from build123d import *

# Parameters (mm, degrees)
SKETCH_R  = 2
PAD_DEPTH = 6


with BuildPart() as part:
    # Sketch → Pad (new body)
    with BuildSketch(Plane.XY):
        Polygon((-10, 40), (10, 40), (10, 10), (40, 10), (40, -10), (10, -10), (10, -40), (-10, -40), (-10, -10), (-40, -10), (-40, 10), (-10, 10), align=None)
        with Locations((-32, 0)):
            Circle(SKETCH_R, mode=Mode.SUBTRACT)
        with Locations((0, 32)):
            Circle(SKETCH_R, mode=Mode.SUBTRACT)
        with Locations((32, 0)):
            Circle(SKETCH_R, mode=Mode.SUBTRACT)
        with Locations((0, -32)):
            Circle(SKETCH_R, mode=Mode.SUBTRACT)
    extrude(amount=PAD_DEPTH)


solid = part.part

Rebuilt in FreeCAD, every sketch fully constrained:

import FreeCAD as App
import Part
import Sketcher

V = App.Vector

doc = App.newDocument("Part")
params = doc.addObject("Spreadsheet::Sheet", "Params")
for row, (alias, value) in enumerate([
    ("sketch1_diameter", "4 mm"),
    ("sketch1_width", "20 mm"),
    ("sketch1_width2", "30 mm"),
    ("pad1_length", "6 mm"),
], start=1):
    params.set(f"A{row}", alias)
    params.set(f"B{row}", "=" + value)
    params.setAlias(f"B{row}", alias)

body = doc.addObject("PartDesign::Body", "Body")

# Sketch on XY plane
sketch1 = doc.addObject("Sketcher::SketchObject", "Sketch")
body.addObject(sketch1)
sketch1.AttachmentSupport = (doc.XY_Plane, [""])
sketch1.MapMode = "FlatFace"
sketch1.addGeometry(Part.LineSegment(V(10, 40, 0), V(-10, 40, 0)), False)
sketch1.addGeometry(Part.LineSegment(V(-10, 40, 0), V(-10, 10, 0)), False)
sketch1.addGeometry(Part.LineSegment(V(-10, 10, 0), V(-40, 10, 0)), False)
sketch1.addGeometry(Part.LineSegment(V(-40, 10, 0), V(-40, -10, 0)), False)
sketch1.addGeometry(Part.LineSegment(V(-40, -10, 0), V(-10, -10, 0)), False)
sketch1.addGeometry(Part.LineSegment(V(-10, -10, 0), V(-10, -40, 0)), False)
sketch1.addGeometry(Part.LineSegment(V(-10, -40, 0), V(10, -40, 0)), False)
sketch1.addGeometry(Part.LineSegment(V(10, -40, 0), V(10, -10, 0)), False)
sketch1.addGeometry(Part.LineSegment(V(10, -10, 0), V(40, -10, 0)), False)
sketch1.addGeometry(Part.LineSegment(V(40, -10, 0), V(40, 10, 0)), False)
sketch1.addGeometry(Part.LineSegment(V(40, 10, 0), V(10, 10, 0)), False)
sketch1.addGeometry(Part.LineSegment(V(10, 10, 0), V(10, 40, 0)), False)
sketch1.addGeometry(Part.Circle(V(0, -32, 0), V(0, 0, 1), 2), False)
sketch1.addGeometry(Part.Circle(V(32, 0, 0), V(0, 0, 1), 2), False)
sketch1.addGeometry(Part.Circle(V(-32, 0, 0), V(0, 0, 1), 2), False)
sketch1.addGeometry(Part.Circle(V(0, 32, 0), V(0, 0, 1), 2), False)
sketch1.addConstraint(Sketcher.Constraint("Coincident", 0, 2, 1, 1))
sketch1.addConstraint(Sketcher.Constraint("Coincident", 1, 2, 2, 1))
sketch1.addConstraint(Sketcher.Constraint("Coincident", 2, 2, 3, 1))
sketch1.addConstraint(Sketcher.Constraint("Coincident", 3, 2, 4, 1))
sketch1.addConstraint(Sketcher.Constraint("Coincident", 4, 2, 5, 1))
sketch1.addConstraint(Sketcher.Constraint("Coincident", 5, 2, 6, 1))
sketch1.addConstraint(Sketcher.Constraint("Coincident", 6, 2, 7, 1))
sketch1.addConstraint(Sketcher.Constraint("Coincident", 7, 2, 8, 1))
sketch1.addConstraint(Sketcher.Constraint("Coincident", 8, 2, 9, 1))
sketch1.addConstraint(Sketcher.Constraint("Coincident", 9, 2, 10, 1))
sketch1.addConstraint(Sketcher.Constraint("Coincident", 10, 2, 11, 1))
sketch1.addConstraint(Sketcher.Constraint("Coincident", 11, 2, 0, 1))
sketch1.addConstraint(Sketcher.Constraint("Horizontal", 0))
sketch1.addConstraint(Sketcher.Constraint("Vertical", 1))
sketch1.addConstraint(Sketcher.Constraint("Horizontal", 2))
sketch1.addConstraint(Sketcher.Constraint("Vertical", 3))
sketch1.addConstraint(Sketcher.Constraint("Horizontal", 4))
sketch1.addConstraint(Sketcher.Constraint("Vertical", 5))
sketch1.addConstraint(Sketcher.Constraint("Horizontal", 6))
sketch1.addConstraint(Sketcher.Constraint("Vertical", 7))
sketch1.addConstraint(Sketcher.Constraint("Horizontal", 8))
sketch1.addConstraint(Sketcher.Constraint("Vertical", 9))
sketch1.addConstraint(Sketcher.Constraint("Horizontal", 10))
sketch1.addConstraint(Sketcher.Constraint("Vertical", 11))
sketch1.addConstraint(Sketcher.Constraint("Equal", 12, 13))
sketch1.addConstraint(Sketcher.Constraint("Equal", 13, 14))
sketch1.addConstraint(Sketcher.Constraint("Equal", 14, 15))
sketch1.addConstraint(Sketcher.Constraint("Symmetric", 13, 3, 14, 3, -1, 1))
sketch1.addConstraint(Sketcher.Constraint("Symmetric", 12, 3, 15, 3, -1, 1))
sketch1.addConstraint(Sketcher.Constraint("Symmetric", 0, 2, 6, 2, -1, 1))
sketch1.addConstraint(Sketcher.Constraint("Symmetric", 2, 2, 8, 2, -1, 1))
sketch1.addConstraint(Sketcher.Constraint("Symmetric", 4, 2, 10, 2, -1, 1))
sketch1.addConstraint(Sketcher.Constraint("Symmetric", 4, 2, 7, 2, -2))
sketch1.addConstraint(Sketcher.Constraint("PointOnObject", 12, 3, -2))
sketch1.addConstraint(Sketcher.Constraint("PointOnObject", 13, 3, -1))
sketch1.addConstraint(Sketcher.Constraint("Equal", 10, 1))
sketch1.addConstraint(Sketcher.Constraint("Equal", 6, 3))
sketch1.addConstraint(Sketcher.Constraint("Diameter", 12, 4.0))
sketch1.addConstraint(Sketcher.Constraint("DistanceX", 0, 2, 0, 1, 20.0))
sketch1.addConstraint(Sketcher.Constraint("DistanceX", 2, 2, 2, 1, 30.0))
sketch1.addConstraint(Sketcher.Constraint("DistanceY", 12, 3, -1, 1, 32.0))
sketch1.addConstraint(Sketcher.Constraint("DistanceX", -1, 1, 13, 3, 32.0))
sketch1.setExpression("Constraints[37]", "Params.sketch1_diameter")
sketch1.setExpression("Constraints[38]", "Params.sketch1_width")
sketch1.setExpression("Constraints[39]", "Params.sketch1_width2")
pad1 = doc.addObject("PartDesign::Pad", "Pad")
body.addObject(pad1)
pad1.Profile = sketch1
pad1.setExpression("Length", "Params.pad1_length")

doc.recompute()
